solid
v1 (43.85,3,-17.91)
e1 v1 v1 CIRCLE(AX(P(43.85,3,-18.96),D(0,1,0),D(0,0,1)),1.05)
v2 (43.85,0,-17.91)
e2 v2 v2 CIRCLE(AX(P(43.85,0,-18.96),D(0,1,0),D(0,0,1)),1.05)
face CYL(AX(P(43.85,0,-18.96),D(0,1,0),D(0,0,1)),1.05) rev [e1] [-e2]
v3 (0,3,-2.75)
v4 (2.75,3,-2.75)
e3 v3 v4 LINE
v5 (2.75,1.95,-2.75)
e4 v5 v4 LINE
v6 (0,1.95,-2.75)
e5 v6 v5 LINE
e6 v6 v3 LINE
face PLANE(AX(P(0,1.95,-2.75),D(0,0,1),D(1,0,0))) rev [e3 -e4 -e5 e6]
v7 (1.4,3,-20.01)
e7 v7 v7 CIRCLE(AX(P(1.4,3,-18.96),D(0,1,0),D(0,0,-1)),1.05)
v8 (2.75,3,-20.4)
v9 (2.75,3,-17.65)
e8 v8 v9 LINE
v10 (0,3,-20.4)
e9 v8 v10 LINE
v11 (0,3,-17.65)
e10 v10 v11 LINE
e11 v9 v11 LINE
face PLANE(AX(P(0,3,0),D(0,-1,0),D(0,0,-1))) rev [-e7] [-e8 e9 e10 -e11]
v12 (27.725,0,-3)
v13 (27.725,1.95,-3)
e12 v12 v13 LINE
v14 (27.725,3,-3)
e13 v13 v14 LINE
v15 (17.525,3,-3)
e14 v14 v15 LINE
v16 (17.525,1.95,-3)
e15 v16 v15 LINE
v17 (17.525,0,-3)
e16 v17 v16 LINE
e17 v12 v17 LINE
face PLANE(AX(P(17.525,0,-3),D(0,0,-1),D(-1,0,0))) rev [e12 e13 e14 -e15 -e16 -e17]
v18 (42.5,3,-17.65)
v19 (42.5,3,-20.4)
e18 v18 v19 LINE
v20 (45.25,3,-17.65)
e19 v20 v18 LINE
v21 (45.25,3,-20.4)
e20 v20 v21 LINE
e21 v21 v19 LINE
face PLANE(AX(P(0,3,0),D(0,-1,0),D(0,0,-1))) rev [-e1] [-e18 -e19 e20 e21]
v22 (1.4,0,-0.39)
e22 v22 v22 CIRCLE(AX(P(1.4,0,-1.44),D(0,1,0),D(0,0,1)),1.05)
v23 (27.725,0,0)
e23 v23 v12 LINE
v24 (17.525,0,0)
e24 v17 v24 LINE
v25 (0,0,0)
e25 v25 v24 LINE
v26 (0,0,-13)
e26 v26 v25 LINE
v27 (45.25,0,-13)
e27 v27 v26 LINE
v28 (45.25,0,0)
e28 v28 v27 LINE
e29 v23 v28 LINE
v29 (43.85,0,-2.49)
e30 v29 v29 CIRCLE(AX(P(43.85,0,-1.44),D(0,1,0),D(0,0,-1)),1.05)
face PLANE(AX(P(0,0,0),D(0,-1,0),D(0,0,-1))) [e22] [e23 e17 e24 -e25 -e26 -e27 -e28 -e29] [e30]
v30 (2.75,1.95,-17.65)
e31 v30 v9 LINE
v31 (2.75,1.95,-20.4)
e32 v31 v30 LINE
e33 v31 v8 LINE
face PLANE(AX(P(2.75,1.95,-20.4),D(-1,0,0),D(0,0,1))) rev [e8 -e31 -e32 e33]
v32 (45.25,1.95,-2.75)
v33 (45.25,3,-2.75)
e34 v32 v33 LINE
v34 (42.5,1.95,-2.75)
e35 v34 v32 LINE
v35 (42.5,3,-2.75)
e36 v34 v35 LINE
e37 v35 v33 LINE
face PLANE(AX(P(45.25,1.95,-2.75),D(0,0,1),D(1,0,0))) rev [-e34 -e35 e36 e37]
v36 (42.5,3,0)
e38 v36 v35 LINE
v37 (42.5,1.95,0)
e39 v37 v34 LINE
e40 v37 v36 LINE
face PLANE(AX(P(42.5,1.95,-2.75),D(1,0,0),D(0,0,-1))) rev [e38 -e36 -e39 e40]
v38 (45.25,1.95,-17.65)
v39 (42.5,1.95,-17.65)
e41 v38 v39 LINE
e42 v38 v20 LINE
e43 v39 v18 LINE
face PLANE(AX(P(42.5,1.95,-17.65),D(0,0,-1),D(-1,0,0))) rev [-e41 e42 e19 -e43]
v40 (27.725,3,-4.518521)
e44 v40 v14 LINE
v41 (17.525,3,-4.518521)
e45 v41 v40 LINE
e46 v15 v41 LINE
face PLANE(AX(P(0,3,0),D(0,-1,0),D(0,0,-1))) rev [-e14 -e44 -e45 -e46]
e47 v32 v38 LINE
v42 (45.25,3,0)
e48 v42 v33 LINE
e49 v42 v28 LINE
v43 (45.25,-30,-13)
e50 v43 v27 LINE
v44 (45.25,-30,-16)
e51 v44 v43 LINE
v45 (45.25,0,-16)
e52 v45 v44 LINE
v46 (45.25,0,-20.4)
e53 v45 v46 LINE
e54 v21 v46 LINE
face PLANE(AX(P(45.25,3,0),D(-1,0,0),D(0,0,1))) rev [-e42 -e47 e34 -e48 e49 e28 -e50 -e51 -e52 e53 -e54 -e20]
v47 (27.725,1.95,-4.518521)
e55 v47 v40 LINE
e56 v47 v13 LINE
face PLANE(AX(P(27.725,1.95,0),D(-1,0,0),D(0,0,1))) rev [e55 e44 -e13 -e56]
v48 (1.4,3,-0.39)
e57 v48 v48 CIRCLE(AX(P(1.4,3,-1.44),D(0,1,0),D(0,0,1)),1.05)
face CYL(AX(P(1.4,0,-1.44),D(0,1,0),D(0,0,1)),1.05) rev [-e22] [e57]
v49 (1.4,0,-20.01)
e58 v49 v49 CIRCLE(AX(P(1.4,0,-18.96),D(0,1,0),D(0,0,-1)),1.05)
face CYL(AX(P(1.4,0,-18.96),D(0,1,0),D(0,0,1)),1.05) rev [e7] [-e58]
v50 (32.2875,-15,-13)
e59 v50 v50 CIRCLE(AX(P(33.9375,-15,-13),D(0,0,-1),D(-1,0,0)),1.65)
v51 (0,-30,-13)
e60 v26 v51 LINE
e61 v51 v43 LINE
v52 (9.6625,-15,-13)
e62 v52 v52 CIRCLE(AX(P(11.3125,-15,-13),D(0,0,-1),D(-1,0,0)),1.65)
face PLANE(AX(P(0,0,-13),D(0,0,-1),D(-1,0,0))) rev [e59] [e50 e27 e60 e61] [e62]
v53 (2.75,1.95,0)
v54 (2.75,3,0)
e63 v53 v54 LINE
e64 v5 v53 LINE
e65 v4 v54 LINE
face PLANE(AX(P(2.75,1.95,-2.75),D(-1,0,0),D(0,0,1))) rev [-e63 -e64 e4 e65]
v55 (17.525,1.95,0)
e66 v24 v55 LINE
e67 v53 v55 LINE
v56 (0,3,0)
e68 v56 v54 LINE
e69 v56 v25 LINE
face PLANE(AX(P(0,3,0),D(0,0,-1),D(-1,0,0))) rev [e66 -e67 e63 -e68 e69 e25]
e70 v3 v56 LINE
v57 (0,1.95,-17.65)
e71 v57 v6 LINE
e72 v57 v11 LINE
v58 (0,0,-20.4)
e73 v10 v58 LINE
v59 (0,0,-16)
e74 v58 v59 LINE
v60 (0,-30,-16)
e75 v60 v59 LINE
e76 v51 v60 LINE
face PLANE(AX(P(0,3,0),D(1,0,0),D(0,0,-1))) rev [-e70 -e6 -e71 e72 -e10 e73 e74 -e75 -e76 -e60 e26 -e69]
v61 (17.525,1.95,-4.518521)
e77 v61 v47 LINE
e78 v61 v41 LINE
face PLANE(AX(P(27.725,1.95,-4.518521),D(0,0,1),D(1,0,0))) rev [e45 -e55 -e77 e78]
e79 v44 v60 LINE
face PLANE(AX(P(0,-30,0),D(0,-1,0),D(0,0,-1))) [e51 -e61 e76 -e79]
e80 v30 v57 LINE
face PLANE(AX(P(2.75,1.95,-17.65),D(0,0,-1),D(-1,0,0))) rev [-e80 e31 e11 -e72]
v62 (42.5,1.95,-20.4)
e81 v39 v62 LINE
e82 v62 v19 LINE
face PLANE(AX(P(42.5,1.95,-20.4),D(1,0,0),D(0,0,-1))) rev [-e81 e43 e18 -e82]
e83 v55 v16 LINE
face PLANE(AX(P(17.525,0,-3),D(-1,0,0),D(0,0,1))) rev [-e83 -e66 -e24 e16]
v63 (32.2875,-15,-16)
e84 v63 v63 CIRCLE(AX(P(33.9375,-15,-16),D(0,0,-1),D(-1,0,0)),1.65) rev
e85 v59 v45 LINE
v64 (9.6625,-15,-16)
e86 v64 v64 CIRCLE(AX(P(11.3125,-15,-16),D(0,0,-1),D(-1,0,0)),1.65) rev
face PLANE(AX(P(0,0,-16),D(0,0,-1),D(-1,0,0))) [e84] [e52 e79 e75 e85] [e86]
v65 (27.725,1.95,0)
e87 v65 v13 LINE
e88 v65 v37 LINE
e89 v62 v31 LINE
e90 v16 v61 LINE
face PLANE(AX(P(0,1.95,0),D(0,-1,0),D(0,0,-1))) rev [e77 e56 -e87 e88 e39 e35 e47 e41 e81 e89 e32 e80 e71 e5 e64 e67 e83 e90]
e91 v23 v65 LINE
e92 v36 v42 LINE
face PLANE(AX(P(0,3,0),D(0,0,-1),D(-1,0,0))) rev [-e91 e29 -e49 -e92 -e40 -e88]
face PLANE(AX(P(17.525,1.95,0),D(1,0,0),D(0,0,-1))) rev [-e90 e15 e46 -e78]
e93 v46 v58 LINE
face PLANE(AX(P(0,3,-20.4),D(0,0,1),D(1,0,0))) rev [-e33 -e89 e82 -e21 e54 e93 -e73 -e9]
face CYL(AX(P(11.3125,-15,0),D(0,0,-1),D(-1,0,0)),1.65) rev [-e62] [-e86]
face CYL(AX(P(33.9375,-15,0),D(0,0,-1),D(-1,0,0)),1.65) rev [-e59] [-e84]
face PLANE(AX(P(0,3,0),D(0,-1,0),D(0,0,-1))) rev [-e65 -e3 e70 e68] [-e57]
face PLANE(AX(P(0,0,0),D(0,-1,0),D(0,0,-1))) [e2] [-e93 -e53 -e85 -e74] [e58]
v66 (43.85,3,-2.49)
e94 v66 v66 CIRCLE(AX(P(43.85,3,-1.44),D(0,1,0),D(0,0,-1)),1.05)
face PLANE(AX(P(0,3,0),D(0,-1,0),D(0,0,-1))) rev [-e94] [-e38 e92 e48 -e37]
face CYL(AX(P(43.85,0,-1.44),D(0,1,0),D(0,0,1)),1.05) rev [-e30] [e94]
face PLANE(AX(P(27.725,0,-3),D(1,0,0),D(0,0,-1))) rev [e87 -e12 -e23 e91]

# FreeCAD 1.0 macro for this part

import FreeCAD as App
import Part
import Sketcher

V = App.Vector
Q = App.Units.Quantity


def add_polygon(sketch, points):
    """Adds a closed chain of lines whose ends are joined by coincident constraints."""
    first, n = sketch.GeometryCount, len(points)
    for a, b in zip(points, points[1:] + points[:1]):
        sketch.addGeometry(Part.LineSegment(App.Vector(*a, 0), App.Vector(*b, 0)), False)
    for i in range(n):
        sketch.addConstraint(Sketcher.Constraint("Coincident", first + i, 2, first + (i + 1) % n, 1))

doc = App.newDocument("Part")
params = doc.addObject("Spreadsheet::Sheet", "Params")
for row, (alias, value) in enumerate([
    ("sketch1_height", "20.4 mm"),
    ("sketch1_width", "45.25 mm"),
    ("pad1_length", "3 mm"),
    ("sketch2_height", "3 mm"),
    ("sketch2_width", "10.2 mm"),
    ("sketch3_width", "10.2 mm"),
    ("sketch3_height", "14.9 mm"),
    ("sketch3_width2", "2.75 mm"),
    ("sketch3_width3", "39.75 mm"),
    ("pocket2_length", "1.05 mm"),
    ("sketch4_diameter", "2.1 mm"),
    ("sketch5_height", "15 mm"),
    ("sketch5_width", "45.25 mm"),
    ("pad2_length", "30 mm"),
    ("sketch6_height", "30 mm"),
    ("sketch6_width", "45.25 mm"),
    ("pocket4_length", "10 mm"),
    ("sketch7_diameter", "3.3 mm"),
    ("sketch8_height", "30 mm"),
    ("sketch8_width", "45.25 mm"),
    ("pocket6_length", "2 mm"),
], start=1):
    params.set(f"A{row}", alias)
    params.set(f"B{row}", "=" + value)
    params.setAlias(f"B{row}", alias)

body = doc.addObject("PartDesign::Body", "Body")

sketch1 = body.newObject("Sketcher::SketchObject", "Sketch")
sketch1.AttachmentSupport = (doc.getObject("XZ_Plane"), [""])
sketch1.MapMode = "FlatFace"
add_polygon(sketch1, [(0, -20.4), (0, 0), (45.25, 0), (45.25, -20.4)])
sketch1.addConstraint([
    Sketcher.Constraint("Vertical", 0),
    Sketcher.Constraint("Horizontal", 1),
    Sketcher.Constraint("Vertical", 2),
    Sketcher.Constraint("Horizontal", 3),
    Sketcher.Constraint("Coincident", 0, 2, -1, 1),
    Sketcher.Constraint("DistanceY", 0, 1, 0, 2, Q("20.4 mm")),
    Sketcher.Constraint("DistanceX", 1, 1, 1, 2, Q("45.25 mm")),
])
sketch1.setExpression("Constraints[9]", "Params.sketch1_height")
sketch1.setExpression("Constraints[10]", "Params.sketch1_width")
pad1 = body.newObject("PartDesign::Pad", "Pad")
pad1.Profile = sketch1
pad1.setExpression("Length", "Params.pad1_length")
pad1.Reversed = True

sketch2 = body.newObject("Sketcher::SketchObject", "Sketch001")
sketch2.AttachmentSupport = (doc.getObject("XZ_Plane"), [""])
sketch2.MapMode = "FlatFace"
sketch2.AttachmentOffset = App.Placement(V(0, 0, -3), App.Rotation())
add_polygon(sketch2, [(17.525, -3), (17.525, 0), (27.725, 0), (27.725, -3)])
sketch2.addConstraint([
    Sketcher.Constraint("Vertical", 0),
    Sketcher.Constraint("Horizontal", 1),
    Sketcher.Constraint("Vertical", 2),
    Sketcher.Constraint("Horizontal", 3),
    Sketcher.Constraint("PointOnObject", 0, 2, -1),
    Sketcher.Constraint("DistanceY", 0, 1, 0, 2, Q("3 mm")),
    Sketcher.Constraint("DistanceX", 1, 1, 1, 2, Q("10.2 mm")),
    Sketcher.Constraint("DistanceX", -1, 1, 0, 2, Q("17.525 mm")),
])
sketch2.setExpression("Constraints[9]", "Params.sketch2_height")
sketch2.setExpression("Constraints[10]", "Params.sketch2_width")
pocket1 = body.newObject("PartDesign::Pocket", "Pocket")
pocket1.Profile = sketch2
pocket1.Type = "ThroughAll"
pocket1.Reversed = True

sketch3 = body.newObject("Sketcher::SketchObject", "Sketch002")
sketch3.AttachmentSupport = (doc.getObject("XZ_Plane"), [""])
sketch3.MapMode = "FlatFace"
sketch3.AttachmentOffset = App.Placement(V(0, 0, -3), App.Rotation())
add_polygon(sketch3, [(27.725, 0), (42.5, 0), (42.5, -2.75), (45.25, -2.75), (45.25, -17.65), (42.5, -17.65), (42.5, -20.4), (2.75, -20.4), (2.75, -17.65), (0, -17.65), (0, -2.75), (2.75, -2.75), (2.75, 0), (17.525, 0), (17.525, -4.518521), (27.725, -4.518521)])
sketch3.addConstraint([
    Sketcher.Constraint("Horizontal", 0),
    Sketcher.Constraint("Vertical", 1),
    Sketcher.Constraint("Horizontal", 2),
    Sketcher.Constraint("Vertical", 3),
    Sketcher.Constraint("Horizontal", 4),
    Sketcher.Constraint("Vertical", 5),
    Sketcher.Constraint("Horizontal", 6),
    Sketcher.Constraint("Vertical", 7),
    Sketcher.Constraint("Horizontal", 8),
    Sketcher.Constraint("Vertical", 9),
    Sketcher.Constraint("Horizontal", 10),
    Sketcher.Constraint("Vertical", 11),
    Sketcher.Constraint("Horizontal", 12),
    Sketcher.Constraint("Vertical", 13),
    Sketcher.Constraint("Horizontal", 14),
    Sketcher.Constraint("Vertical", 15),
    Sketcher.Constraint("PointOnObject", 0, 2, -1),
    Sketcher.Constraint("PointOnObject", 8, 2, -2),
    Sketcher.Constraint("PointOnObject", 11, 2, -1),
    Sketcher.Constraint("Horizontal", 4, 2, 7, 2),
    Sketcher.Constraint("Horizontal", 2, 2, 9, 2),
    Sketcher.Constraint("Vertical", 1, 2, 4, 2),
    Sketcher.Constraint("Vertical", 7, 2, 10, 2),
    Sketcher.Constraint("Equal", 4, 8),
    Sketcher.Constraint("Equal", 0, 12),
    Sketcher.Constraint("Equal", 10, 1),
    Sketcher.Constraint("Equal", 1, 5),
    Sketcher.Constraint("DistanceX", 14, 1, 14, 2, Q("10.2 mm")),
    Sketcher.Constraint("DistanceY", 3, 2, 3, 1, Q("14.9 mm")),
    Sketcher.Constraint("DistanceX", 2, 1, 2, 2, Q("2.75 mm")),
    Sketcher.Constraint("DistanceX", 6, 2, 6, 1, Q("39.75 mm")),
    Sketcher.Constraint("DistanceY", 13, 2, 13, 1, Q("4.518521 mm")),
])
sketch3.setExpression("Constraints[43]", "Params.sketch3_width")
sketch3.setExpression("Constraints[44]", "Params.sketch3_height")
sketch3.setExpression("Constraints[45]", "Params.sketch3_width2")
sketch3.setExpression("Constraints[46]", "Params.sketch3_width3")
pocket2 = body.newObject("PartDesign::Pocket", "Pocket001")
pocket2.Profile = sketch3
pocket2.setExpression("Length", "Params.pocket2_length")
pocket2.Reversed = True

sketch4 = body.newObject("Sketcher::SketchObject", "Sketch003")
sketch4.AttachmentSupport = (doc.getObject("XZ_Plane"), [""])
sketch4.MapMode = "FlatFace"
sketch4.AttachmentOffset = App.Placement(V(0, 0, -3), App.Rotation())
sketch4.addGeometry([
    Part.Circle(V(43.85, -18.96, 0), V(0, 0, 1), 1.05),
    Part.Circle(V(1.4, -18.96, 0), V(0, 0, 1), 1.05),
    Part.Circle(V(43.85, -1.44, 0), V(0, 0, 1), 1.05),
    Part.Circle(V(1.4, -1.44, 0), V(0, 0, 1), 1.05),
], False)
sketch4.addConstraint([
    Sketcher.Constraint("Equal", 0, 1),
    Sketcher.Constraint("Equal", 1, 2),
    Sketcher.Constraint("Equal", 2, 3),
    Sketcher.Constraint("Horizontal", 0, 3, 1, 3),
    Sketcher.Constraint("Horizontal", 2, 3, 3, 3),
    Sketcher.Constraint("Vertical", 0, 3, 2, 3),
    Sketcher.Constraint("Vertical", 1, 3, 3, 3),
    Sketcher.Constraint("Diameter", 0, Q("2.1 mm")),
    Sketcher.Constraint("DistanceX", -1, 1, 1, 3, Q("1.4 mm")),
    Sketcher.Constraint("DistanceX", -1, 1, 0, 3, Q("43.85 mm")),
    Sketcher.Constraint("DistanceY", 0, 3, -1, 1, Q("18.96 mm")),
    Sketcher.Constraint("DistanceY", 2, 3, -1, 1, Q("1.44 mm")),
])
sketch4.setExpression("Constraints[7]", "Params.sketch4_diameter")
pocket3 = body.newObject("PartDesign::Pocket", "Pocket002")
pocket3.Profile = sketch4
pocket3.Type = "ThroughAll"
pocket3.Reversed = True

sketch5 = body.newObject("Sketcher::SketchObject", "Sketch004")
sketch5.AttachmentSupport = (doc.getObject("XZ_Plane"), [""])
sketch5.MapMode = "FlatFace"
add_polygon(sketch5, [(0, -3), (0, -18), (45.25, -18), (45.25, -3)])
sketch5.addConstraint([
    Sketcher.Constraint("Vertical", 0),
    Sketcher.Constraint("Horizontal", 1),
    Sketcher.Constraint("Vertical", 2),
    Sketcher.Constraint("Horizontal", 3),
    Sketcher.Constraint("PointOnObject", 0, 2, -2),
    Sketcher.Constraint("DistanceY", 0, 2, 0, 1, Q("15 mm")),
    Sketcher.Constraint("DistanceY", 0, 2, -1, 1, Q("18 mm")),
    Sketcher.Constraint("DistanceX", 1, 1, 1, 2, Q("45.25 mm")),
])
sketch5.setExpression("Constraints[9]", "Params.sketch5_height")
sketch5.setExpression("Constraints[11]", "Params.sketch5_width")
pad2 = body.newObject("PartDesign::Pad", "Pad001")
pad2.Profile = sketch5
pad2.setExpression("Length", "Params.pad2_length")

sketch6 = body.newObject("Sketcher::SketchObject", "Sketch005")
sketch6.AttachmentSupport = (doc.getObject("XY_Plane"), [""])
sketch6.MapMode = "FlatFace"
sketch6.AttachmentOffset = App.Placement(V(0, 0, -3), App.Rotation())
add_polygon(sketch6, [(0, 0), (0, -30), (45.25, -30), (45.25, 0)])
sketch6.addConstraint([
    Sketcher.Constraint("Vertical", 0),
    Sketcher.Constraint("Horizontal", 1),
    Sketcher.Constraint("Vertical", 2),
    Sketcher.Constraint("Horizontal", 3),
    Sketcher.Constraint("Coincident", 3, 2, -1, 1),
    Sketcher.Constraint("DistanceY", 0, 2, 0, 1, Q("30 mm")),
    Sketcher.Constraint("DistanceX", 1, 1, 1, 2, Q("45.25 mm")),
])
sketch6.setExpression("Constraints[9]", "Params.sketch6_height")
sketch6.setExpression("Constraints[10]", "Params.sketch6_width")
pocket4 = body.newObject("PartDesign::Pocket", "Pocket003")
pocket4.Profile = sketch6
pocket4.setExpression("Length", "Params.pocket4_length")

sketch7 = body.newObject("Sketcher::SketchObject", "Sketch006")
sketch7.AttachmentSupport = (doc.getObject("XY_Plane"), [""])
sketch7.MapMode = "FlatFace"
sketch7.AttachmentOffset = App.Placement(V(0, 0, -18), App.Rotation())
sketch7.addGeometry([
    Part.Circle(V(11.3125, -15, 0), V(0, 0, 1), 1.65),
    Part.Circle(V(33.9375, -15, 0), V(0, 0, 1), 1.65),
], False)
sketch7.addConstraint([
    Sketcher.Constraint("Equal", 0, 1),
    Sketcher.Constraint("Horizontal", 0, 3, 1, 3),
    Sketcher.Constraint("Diameter", 0, Q("3.3 mm")),
    Sketcher.Constraint("DistanceY", 0, 3, -1, 1, Q("15 mm")),
    Sketcher.Constraint("DistanceX", 0, 3, 1, 3, Q("22.625 mm")),
    Sketcher.Constraint("DistanceX", -1, 1, 0, 3, Q("11.3125 mm")),
])
sketch7.setExpression("Constraints[2]", "Params.sketch7_diameter")
pocket5 = body.newObject("PartDesign::Pocket", "Pocket004")
pocket5.Profile = sketch7
pocket5.Type = "ThroughAll"
pocket5.Reversed = True

sketch8 = body.newObject("Sketcher::SketchObject", "Sketch007")
sketch8.AttachmentSupport = (doc.getObject("XY_Plane"), [""])
sketch8.MapMode = "FlatFace"
sketch8.AttachmentOffset = App.Placement(V(0, 0, -18), App.Rotation())
add_polygon(sketch8, [(45.25, 0), (45.25, -30), (0, -30), (0, 0)])
sketch8.addConstraint([
    Sketcher.Constraint("Vertical", 0),
    Sketcher.Constraint("Horizontal", 1),
    Sketcher.Constraint("Vertical", 2),
    Sketcher.Constraint("Horizontal", 3),
    Sketcher.Constraint("Coincident", 2, 2, -1, 1),
    Sketcher.Constraint("DistanceY", 0, 2, 0, 1, Q("30 mm")),
    Sketcher.Constraint("DistanceX", 1, 2, 1, 1, Q("45.25 mm")),
])
sketch8.setExpression("Constraints[9]", "Params.sketch8_height")
sketch8.setExpression("Constraints[10]", "Params.sketch8_width")
pocket6 = body.newObject("PartDesign::Pocket", "Pocket005")
pocket6.Profile = sketch8
pocket6.setExpression("Length", "Params.pocket6_length")
pocket6.Reversed = True

doc.recompute()
